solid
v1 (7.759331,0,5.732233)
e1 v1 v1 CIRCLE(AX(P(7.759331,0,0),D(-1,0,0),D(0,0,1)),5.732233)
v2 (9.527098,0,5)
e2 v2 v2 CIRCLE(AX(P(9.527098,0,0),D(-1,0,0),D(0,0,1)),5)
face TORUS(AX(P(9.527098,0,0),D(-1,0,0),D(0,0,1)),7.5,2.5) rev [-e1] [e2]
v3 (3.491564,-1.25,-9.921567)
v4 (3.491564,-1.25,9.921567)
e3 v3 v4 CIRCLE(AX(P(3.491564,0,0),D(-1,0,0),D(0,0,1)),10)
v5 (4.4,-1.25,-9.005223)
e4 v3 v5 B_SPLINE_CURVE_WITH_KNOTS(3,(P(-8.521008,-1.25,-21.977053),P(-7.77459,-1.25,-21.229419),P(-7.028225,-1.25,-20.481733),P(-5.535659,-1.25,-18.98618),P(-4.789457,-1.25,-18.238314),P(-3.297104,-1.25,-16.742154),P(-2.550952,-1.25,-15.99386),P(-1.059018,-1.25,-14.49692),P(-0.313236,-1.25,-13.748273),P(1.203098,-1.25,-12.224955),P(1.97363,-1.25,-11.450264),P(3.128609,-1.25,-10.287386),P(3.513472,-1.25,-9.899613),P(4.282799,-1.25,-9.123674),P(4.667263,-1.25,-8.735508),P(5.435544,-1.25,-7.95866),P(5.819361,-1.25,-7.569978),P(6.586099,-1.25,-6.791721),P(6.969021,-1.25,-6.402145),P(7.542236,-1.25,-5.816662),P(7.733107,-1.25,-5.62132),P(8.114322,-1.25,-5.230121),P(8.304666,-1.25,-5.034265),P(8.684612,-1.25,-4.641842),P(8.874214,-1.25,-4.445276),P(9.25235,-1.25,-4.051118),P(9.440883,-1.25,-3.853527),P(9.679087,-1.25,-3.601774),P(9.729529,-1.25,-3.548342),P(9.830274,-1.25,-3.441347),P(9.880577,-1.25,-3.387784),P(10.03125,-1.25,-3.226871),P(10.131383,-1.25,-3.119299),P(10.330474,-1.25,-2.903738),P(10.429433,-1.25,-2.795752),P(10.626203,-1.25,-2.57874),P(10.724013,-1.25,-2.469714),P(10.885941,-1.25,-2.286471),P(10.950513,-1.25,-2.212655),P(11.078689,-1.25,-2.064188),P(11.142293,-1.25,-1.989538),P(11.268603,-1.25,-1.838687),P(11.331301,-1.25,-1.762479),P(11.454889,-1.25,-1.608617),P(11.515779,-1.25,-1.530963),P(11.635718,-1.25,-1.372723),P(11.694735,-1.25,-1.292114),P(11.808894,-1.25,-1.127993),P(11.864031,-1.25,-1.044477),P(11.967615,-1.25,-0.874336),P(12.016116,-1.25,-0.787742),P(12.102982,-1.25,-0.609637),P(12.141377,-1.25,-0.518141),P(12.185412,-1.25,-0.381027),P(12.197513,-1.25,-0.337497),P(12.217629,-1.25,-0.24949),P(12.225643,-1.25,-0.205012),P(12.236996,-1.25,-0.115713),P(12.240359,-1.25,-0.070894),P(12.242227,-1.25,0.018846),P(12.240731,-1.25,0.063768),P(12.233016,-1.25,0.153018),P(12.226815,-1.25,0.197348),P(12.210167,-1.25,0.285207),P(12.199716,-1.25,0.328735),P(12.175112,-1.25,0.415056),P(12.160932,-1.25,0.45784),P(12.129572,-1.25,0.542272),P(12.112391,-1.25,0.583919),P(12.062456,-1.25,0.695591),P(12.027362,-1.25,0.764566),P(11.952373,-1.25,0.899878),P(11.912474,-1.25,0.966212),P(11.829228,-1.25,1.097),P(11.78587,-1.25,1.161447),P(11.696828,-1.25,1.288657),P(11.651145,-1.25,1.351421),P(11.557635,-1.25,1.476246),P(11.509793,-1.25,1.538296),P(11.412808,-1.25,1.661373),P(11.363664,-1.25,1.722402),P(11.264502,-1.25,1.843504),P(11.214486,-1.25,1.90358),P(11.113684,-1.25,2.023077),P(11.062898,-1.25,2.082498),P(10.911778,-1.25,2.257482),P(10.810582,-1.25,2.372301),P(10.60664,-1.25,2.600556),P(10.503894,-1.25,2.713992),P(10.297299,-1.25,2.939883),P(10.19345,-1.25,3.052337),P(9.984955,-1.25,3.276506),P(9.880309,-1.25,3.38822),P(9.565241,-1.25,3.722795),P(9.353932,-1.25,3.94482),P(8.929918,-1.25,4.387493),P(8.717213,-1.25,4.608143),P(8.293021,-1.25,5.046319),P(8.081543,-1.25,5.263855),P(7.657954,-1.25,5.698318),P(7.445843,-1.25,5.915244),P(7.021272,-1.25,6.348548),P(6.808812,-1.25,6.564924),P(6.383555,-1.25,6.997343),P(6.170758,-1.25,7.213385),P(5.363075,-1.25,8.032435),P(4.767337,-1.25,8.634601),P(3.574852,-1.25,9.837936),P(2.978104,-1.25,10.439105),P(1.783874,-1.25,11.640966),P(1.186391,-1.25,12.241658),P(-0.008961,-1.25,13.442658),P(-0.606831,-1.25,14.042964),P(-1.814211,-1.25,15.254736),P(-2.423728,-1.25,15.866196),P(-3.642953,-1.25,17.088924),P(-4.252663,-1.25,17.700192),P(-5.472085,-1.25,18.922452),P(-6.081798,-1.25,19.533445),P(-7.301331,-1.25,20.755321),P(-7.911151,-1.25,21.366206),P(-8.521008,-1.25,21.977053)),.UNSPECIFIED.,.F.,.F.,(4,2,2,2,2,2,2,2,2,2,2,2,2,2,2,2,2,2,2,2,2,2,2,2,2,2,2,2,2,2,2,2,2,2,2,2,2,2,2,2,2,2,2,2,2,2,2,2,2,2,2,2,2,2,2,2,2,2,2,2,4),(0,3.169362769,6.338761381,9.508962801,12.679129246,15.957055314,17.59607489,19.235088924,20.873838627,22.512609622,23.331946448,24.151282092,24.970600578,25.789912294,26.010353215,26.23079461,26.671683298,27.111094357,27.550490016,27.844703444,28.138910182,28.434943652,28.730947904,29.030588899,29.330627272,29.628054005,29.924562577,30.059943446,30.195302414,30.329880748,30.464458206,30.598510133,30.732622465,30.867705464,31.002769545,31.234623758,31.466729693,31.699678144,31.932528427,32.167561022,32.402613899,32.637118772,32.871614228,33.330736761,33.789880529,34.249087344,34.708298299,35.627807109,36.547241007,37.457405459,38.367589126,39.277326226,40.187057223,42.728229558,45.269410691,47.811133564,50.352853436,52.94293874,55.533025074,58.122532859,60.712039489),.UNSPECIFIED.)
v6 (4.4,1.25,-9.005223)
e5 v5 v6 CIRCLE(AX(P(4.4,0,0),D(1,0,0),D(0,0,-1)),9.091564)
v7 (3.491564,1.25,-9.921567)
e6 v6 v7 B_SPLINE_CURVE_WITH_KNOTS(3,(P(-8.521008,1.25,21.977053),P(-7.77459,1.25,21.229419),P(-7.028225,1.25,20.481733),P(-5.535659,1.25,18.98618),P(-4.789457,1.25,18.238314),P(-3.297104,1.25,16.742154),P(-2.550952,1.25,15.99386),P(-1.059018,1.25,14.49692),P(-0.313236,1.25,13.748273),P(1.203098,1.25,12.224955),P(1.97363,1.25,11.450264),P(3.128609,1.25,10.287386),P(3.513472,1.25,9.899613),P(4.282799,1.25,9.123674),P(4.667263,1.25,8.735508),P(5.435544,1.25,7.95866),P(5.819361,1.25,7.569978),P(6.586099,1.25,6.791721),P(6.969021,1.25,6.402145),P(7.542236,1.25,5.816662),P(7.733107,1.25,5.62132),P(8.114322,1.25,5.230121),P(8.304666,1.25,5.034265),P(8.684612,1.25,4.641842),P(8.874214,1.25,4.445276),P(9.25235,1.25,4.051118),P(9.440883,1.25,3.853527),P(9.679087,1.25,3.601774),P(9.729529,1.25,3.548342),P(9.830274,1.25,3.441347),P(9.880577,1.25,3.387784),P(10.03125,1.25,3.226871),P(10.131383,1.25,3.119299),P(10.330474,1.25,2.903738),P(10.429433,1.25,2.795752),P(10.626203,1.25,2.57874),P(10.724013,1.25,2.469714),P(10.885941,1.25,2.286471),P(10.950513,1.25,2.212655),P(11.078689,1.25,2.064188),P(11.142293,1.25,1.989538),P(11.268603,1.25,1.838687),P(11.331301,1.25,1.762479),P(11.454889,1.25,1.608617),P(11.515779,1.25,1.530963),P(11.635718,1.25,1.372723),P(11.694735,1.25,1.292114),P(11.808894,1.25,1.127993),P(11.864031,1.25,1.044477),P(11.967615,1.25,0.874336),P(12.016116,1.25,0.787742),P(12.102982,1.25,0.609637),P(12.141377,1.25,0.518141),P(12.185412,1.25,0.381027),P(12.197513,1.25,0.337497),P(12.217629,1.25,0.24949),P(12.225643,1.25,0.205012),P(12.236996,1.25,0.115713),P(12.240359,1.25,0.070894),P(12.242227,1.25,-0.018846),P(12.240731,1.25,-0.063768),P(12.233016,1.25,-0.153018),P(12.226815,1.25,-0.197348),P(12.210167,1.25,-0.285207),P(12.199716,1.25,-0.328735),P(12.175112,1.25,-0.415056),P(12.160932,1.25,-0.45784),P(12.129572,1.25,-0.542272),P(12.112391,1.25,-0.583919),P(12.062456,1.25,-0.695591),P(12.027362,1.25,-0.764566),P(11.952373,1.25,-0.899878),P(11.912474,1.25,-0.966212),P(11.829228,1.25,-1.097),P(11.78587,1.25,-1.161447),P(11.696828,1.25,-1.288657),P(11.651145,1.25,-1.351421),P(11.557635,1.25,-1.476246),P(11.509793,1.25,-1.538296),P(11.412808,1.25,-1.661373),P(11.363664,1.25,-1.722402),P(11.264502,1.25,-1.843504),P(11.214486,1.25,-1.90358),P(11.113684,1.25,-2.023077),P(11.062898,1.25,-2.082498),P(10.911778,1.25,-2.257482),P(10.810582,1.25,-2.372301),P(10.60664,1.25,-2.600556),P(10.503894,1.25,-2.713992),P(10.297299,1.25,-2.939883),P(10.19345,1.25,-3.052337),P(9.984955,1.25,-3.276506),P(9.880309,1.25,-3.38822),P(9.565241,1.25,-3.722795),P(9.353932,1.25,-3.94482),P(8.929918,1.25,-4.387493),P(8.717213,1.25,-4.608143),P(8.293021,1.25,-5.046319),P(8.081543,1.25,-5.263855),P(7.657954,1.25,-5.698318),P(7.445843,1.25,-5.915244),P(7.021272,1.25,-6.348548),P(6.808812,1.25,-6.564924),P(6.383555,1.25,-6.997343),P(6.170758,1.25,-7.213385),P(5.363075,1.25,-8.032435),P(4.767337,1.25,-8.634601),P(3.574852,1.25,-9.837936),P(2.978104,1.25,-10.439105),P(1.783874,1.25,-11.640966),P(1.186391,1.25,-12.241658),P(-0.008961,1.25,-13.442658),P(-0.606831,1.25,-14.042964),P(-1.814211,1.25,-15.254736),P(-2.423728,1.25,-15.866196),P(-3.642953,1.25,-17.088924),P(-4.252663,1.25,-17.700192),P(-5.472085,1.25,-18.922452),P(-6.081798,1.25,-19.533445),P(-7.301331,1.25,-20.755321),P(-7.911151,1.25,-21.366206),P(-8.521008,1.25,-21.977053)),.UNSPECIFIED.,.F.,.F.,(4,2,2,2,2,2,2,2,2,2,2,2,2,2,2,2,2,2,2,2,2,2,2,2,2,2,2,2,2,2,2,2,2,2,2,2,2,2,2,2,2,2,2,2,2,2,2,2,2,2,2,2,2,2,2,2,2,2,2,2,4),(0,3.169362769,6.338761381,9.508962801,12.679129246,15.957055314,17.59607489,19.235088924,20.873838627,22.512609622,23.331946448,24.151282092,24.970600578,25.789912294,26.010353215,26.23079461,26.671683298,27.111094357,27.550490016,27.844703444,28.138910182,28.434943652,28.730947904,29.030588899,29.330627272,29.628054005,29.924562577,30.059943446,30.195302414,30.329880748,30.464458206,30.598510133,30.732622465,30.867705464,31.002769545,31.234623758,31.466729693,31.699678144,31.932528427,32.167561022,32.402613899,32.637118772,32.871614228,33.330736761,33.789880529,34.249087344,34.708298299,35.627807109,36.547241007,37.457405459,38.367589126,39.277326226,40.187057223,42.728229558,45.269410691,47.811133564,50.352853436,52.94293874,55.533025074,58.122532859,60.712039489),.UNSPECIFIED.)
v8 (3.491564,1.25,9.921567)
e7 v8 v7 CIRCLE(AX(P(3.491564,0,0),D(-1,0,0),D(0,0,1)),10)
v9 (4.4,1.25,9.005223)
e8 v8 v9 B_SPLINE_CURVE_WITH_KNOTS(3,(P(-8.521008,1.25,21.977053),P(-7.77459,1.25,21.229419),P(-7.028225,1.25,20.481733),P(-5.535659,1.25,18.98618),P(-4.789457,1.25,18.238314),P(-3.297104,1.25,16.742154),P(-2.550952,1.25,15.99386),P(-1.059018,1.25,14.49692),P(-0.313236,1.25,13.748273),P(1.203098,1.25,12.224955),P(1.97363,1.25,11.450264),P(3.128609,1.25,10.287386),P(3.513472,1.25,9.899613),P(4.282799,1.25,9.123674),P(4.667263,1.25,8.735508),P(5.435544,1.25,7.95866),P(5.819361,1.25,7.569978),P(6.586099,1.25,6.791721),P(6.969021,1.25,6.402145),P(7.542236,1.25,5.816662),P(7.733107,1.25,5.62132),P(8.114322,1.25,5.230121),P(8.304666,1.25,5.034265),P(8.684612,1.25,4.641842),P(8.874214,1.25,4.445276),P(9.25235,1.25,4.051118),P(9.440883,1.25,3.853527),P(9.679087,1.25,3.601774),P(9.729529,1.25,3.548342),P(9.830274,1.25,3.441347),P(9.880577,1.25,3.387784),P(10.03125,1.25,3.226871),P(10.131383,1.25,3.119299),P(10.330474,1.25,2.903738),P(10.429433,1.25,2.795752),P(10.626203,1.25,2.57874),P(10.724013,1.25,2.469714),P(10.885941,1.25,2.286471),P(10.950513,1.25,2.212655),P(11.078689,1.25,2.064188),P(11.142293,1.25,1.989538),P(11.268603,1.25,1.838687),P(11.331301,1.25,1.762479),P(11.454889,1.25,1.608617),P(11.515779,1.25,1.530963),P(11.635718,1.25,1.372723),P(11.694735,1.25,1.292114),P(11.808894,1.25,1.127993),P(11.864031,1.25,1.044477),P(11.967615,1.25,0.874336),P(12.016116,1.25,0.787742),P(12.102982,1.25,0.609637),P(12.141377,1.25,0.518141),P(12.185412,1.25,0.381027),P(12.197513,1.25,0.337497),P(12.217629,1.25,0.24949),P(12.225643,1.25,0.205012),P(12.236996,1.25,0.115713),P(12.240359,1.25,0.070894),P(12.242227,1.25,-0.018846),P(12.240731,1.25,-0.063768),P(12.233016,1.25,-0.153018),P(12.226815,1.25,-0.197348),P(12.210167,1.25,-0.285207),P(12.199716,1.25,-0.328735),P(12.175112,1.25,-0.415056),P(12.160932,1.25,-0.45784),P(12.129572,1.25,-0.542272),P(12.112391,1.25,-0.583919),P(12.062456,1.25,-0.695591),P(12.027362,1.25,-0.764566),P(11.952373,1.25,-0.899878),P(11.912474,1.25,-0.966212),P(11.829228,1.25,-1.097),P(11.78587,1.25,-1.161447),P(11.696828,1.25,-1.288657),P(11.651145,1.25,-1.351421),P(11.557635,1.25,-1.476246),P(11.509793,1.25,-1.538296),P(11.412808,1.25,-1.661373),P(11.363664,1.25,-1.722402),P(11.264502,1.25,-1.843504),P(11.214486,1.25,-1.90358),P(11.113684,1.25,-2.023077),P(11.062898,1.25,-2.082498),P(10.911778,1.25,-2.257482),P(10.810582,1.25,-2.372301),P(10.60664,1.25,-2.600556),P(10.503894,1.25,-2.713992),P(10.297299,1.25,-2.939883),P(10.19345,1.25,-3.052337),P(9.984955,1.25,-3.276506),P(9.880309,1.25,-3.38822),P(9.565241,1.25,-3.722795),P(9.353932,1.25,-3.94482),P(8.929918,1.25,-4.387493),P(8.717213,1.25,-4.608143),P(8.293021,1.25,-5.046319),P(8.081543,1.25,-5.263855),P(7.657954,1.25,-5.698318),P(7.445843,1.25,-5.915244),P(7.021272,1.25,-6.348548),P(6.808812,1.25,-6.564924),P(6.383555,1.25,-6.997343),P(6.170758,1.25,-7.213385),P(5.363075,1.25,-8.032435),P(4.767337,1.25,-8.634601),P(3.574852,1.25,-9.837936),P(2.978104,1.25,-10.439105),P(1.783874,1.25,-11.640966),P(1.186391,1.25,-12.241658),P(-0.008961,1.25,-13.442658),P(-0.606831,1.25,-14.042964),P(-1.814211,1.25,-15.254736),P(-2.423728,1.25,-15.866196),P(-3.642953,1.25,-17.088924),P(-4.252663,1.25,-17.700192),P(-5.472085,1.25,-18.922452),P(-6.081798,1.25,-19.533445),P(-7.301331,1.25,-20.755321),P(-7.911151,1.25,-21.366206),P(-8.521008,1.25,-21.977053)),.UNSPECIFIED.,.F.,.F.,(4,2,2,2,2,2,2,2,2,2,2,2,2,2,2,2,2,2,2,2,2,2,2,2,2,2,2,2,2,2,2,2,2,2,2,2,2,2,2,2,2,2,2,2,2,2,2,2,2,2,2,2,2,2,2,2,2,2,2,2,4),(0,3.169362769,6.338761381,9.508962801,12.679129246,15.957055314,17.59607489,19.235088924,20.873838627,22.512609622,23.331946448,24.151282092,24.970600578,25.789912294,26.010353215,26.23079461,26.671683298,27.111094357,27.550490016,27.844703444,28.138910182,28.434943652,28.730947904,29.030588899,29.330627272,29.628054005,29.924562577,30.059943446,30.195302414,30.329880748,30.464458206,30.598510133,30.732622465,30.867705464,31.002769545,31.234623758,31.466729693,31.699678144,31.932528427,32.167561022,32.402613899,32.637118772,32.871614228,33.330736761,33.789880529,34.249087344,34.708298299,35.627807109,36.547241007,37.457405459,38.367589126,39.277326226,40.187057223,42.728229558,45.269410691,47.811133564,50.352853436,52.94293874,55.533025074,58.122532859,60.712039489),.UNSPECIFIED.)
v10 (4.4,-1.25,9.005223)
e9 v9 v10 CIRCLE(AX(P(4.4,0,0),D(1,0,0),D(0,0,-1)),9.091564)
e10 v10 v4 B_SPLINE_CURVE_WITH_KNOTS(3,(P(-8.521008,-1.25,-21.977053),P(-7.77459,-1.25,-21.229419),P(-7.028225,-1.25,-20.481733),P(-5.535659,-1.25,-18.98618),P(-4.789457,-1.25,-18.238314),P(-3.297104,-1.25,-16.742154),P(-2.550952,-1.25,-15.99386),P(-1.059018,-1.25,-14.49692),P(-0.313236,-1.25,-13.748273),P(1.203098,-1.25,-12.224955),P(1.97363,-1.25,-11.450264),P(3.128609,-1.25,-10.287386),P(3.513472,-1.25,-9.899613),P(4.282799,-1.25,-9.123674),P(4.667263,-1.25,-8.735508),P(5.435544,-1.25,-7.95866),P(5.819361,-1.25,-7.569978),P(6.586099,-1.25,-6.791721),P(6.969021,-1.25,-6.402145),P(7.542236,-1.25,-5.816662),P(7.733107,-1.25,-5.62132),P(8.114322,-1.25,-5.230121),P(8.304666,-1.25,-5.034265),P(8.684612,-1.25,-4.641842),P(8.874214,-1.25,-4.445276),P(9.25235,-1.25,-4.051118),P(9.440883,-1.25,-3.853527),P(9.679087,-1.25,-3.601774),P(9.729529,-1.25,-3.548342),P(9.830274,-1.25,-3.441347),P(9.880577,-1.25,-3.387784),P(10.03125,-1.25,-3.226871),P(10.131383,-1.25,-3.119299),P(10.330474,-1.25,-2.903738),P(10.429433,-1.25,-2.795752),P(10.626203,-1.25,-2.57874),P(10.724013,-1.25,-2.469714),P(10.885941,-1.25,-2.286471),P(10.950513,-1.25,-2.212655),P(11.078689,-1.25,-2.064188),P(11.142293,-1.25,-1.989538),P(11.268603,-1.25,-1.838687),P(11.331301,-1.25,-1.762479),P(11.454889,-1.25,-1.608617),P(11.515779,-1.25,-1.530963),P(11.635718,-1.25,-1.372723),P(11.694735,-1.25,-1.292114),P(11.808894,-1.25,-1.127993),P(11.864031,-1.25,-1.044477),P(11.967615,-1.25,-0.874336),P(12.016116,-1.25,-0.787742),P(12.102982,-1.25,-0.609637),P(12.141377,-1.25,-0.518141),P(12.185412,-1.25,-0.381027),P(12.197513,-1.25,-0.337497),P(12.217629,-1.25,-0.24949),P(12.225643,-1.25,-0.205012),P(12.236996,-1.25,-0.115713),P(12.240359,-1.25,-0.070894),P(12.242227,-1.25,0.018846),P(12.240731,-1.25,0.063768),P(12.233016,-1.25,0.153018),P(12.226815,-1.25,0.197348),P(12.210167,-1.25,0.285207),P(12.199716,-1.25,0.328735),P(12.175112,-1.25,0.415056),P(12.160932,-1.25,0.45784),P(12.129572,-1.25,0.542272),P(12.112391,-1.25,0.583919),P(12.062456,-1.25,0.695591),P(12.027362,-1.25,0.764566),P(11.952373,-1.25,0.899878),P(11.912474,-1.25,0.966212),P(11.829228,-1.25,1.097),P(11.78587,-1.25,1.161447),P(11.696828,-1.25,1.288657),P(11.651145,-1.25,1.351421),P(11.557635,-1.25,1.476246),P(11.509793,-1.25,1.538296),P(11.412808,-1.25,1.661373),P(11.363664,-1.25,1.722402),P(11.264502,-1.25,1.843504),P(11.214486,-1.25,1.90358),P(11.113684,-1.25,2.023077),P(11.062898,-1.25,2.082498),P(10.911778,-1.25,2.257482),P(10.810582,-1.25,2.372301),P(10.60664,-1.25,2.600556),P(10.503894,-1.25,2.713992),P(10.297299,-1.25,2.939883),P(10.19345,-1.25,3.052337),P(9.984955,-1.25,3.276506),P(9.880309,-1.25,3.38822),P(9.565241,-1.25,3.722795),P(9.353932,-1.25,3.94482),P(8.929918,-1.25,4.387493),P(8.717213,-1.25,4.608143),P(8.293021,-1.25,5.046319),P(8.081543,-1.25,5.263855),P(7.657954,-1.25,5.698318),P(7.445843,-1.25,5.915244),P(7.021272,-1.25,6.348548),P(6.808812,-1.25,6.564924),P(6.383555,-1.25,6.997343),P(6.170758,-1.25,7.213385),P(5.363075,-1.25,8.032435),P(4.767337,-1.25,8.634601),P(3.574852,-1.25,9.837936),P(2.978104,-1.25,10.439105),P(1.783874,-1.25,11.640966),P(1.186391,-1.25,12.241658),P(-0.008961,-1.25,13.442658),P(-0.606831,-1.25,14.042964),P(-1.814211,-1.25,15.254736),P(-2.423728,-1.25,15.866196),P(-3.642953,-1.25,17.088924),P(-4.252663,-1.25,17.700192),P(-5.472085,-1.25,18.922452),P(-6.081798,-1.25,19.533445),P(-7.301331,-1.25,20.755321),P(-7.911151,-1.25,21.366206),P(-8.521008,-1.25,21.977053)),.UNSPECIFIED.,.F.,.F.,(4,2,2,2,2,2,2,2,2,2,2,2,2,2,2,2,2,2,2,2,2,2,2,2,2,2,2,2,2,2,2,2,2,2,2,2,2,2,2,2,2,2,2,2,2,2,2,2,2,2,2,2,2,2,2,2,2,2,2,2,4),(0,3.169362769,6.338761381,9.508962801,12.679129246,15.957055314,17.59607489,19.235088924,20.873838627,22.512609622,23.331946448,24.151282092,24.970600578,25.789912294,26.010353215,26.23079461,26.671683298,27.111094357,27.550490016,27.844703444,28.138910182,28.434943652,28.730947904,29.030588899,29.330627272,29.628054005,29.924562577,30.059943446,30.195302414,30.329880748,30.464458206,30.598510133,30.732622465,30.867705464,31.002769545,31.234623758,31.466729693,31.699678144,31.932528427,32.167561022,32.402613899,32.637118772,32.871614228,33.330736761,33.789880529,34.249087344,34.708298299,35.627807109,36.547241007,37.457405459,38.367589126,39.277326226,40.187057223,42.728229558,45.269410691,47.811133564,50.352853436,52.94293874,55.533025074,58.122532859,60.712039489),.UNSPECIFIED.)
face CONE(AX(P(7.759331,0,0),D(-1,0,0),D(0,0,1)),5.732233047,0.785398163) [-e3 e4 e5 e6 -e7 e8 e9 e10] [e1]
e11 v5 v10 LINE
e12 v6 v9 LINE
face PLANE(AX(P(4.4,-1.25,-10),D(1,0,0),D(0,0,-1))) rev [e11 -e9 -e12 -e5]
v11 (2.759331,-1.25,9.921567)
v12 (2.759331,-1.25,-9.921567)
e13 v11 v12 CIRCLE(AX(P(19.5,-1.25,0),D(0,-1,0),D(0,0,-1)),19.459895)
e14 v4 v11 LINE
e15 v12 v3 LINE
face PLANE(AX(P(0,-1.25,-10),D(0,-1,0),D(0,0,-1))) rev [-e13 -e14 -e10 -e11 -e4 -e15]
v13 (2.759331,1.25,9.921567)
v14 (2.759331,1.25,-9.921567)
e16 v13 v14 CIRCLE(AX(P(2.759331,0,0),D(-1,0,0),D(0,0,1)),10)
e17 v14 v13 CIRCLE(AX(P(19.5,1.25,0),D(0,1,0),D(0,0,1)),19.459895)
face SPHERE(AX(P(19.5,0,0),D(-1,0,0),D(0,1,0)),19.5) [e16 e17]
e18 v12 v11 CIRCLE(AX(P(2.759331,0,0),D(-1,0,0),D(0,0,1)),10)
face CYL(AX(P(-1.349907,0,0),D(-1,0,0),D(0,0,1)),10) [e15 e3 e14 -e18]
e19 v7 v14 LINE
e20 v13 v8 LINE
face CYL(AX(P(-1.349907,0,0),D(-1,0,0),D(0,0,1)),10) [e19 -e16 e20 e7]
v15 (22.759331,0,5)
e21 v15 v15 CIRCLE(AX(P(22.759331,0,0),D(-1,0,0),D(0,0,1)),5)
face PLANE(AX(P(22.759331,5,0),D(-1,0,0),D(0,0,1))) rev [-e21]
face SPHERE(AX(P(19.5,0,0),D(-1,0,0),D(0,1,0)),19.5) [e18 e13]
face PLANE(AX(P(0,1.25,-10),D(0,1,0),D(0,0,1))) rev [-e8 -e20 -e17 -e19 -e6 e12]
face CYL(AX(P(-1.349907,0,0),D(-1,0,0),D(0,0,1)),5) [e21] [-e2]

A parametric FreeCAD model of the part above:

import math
import FreeCAD as App
import Part
import Sketcher
Q = App.Units.Quantity


def add_polygon(sketch, points):
    """Adds a closed chain of lines whose ends are joined by coincident constraints."""
    first, n = sketch.GeometryCount, len(points)
    for a, b in zip(points, points[1:] + points[:1]):
        sketch.addGeometry(Part.LineSegment(App.Vector(*a, 0), App.Vector(*b, 0)), False)
    for i in range(n):
        sketch.addConstraint(Sketcher.Constraint("Coincident", first + i, 2, first + (i + 1) % n, 1))

doc = App.newDocument("Part")
body = doc.addObject("PartDesign::Body", "Body")

sketch1 = body.newObject("Sketcher::SketchObject", "Sketch")
sketch1.AttachmentSupport = (doc.getObject("XY_Plane"), [""])
sketch1.MapMode = "FlatFace"
sketch1.addGeometry([
    Part.LineSegment(App.Vector(3.5, 10, 0), App.Vector(2.8, 10, 0)),
    Part.ArcOfCircle(Part.Circle(App.Vector(19.5, 0, 0), App.Vector(0, 0, 1), 19.5), math.radians(149), math.radians(180)),
    Part.LineSegment(App.Vector(0, 0, 0), App.Vector(22.8, 0, 0)),
    Part.LineSegment(App.Vector(22.8, 0, 0), App.Vector(22.8, 5, 0)),
    Part.LineSegment(App.Vector(22.8, 5, 0), App.Vector(9.5, 5, 0)),
    Part.ArcOfCircle(Part.Circle(App.Vector(9.5, 7.5, 0), App.Vector(0, 0, 1), 2.5), math.radians(-135), math.radians(-90)),
    Part.LineSegment(App.Vector(7.8, 5.7, 0), App.Vector(3.5, 10, 0)),
], False)
sketch1.addConstraint([
    Sketcher.Constraint("Coincident", 0, 2, 1, 1),
    Sketcher.Constraint("Coincident", 1, 2, 2, 1),
    Sketcher.Constraint("Coincident", 2, 2, 3, 1),
    Sketcher.Constraint("Coincident", 3, 2, 4, 1),
    Sketcher.Constraint("Tangent", 4, 2, 5, 2),
    Sketcher.Constraint("Tangent", 5, 1, 6, 1),
    Sketcher.Constraint("Coincident", 6, 2, 0, 1),
    Sketcher.Constraint("Horizontal", 0),
    Sketcher.Constraint("Horizontal", 2),
    Sketcher.Constraint("Vertical", 3),
    Sketcher.Constraint("Horizontal", 4),
    Sketcher.Constraint("Coincident", 1, 2, -1, 1),
    Sketcher.Constraint("PointOnObject", 1, 3, -1),
    Sketcher.Constraint("Radius", 1, 19.5),
    Sketcher.Constraint("Radius", 5, 2.5),
    Sketcher.Constraint("DistanceY", 3, 1, 3, 2, 5.0),
    Sketcher.Constraint("Angle", 6, Q("135 deg")),
    Sketcher.Constraint("DistanceY", -1, 1, 0, 2, 10.0),
    Sketcher.Constraint("DistanceX", 0, 2, 2, 2, 20.0),
    Sketcher.Constraint("DistanceX", 0, 2, 5, 1, 5.0),
])
revolution = body.newObject("PartDesign::Revolution", "Revolution")
revolution.Profile = sketch1
revolution.ReferenceAxis = (sketch1, ["H_Axis"])
revolution.Angle = 360

sketch2 = body.newObject("Sketcher::SketchObject", "Sketch001")
sketch2.AttachmentSupport = (doc.getObject("XY_Plane"), [""])
sketch2.MapMode = "FlatFace"
add_polygon(sketch2, [(0, 1.2), (0, -1.2), (4.4, -1.2), (4.4, 1.2)])
sketch2.addConstraint([
    Sketcher.Constraint("Vertical", 0),
    Sketcher.Constraint("Horizontal", 1),
    Sketcher.Constraint("Vertical", 2),
    Sketcher.Constraint("Horizontal", 3),
    Sketcher.Constraint("Symmetric", 0, 2, 3, 2, -1, 1),
    Sketcher.Constraint("DistanceX", 1, 1, 1, 2, 4.4),
    Sketcher.Constraint("DistanceY", 0, 2, 0, 1, 2.5),
])
pocket1 = body.newObject("PartDesign::Pocket", "Pocket")
pocket1.Profile = sketch2
pocket1.Type = "ThroughAll"
pocket1.Midplane = True

doc.recompute()
